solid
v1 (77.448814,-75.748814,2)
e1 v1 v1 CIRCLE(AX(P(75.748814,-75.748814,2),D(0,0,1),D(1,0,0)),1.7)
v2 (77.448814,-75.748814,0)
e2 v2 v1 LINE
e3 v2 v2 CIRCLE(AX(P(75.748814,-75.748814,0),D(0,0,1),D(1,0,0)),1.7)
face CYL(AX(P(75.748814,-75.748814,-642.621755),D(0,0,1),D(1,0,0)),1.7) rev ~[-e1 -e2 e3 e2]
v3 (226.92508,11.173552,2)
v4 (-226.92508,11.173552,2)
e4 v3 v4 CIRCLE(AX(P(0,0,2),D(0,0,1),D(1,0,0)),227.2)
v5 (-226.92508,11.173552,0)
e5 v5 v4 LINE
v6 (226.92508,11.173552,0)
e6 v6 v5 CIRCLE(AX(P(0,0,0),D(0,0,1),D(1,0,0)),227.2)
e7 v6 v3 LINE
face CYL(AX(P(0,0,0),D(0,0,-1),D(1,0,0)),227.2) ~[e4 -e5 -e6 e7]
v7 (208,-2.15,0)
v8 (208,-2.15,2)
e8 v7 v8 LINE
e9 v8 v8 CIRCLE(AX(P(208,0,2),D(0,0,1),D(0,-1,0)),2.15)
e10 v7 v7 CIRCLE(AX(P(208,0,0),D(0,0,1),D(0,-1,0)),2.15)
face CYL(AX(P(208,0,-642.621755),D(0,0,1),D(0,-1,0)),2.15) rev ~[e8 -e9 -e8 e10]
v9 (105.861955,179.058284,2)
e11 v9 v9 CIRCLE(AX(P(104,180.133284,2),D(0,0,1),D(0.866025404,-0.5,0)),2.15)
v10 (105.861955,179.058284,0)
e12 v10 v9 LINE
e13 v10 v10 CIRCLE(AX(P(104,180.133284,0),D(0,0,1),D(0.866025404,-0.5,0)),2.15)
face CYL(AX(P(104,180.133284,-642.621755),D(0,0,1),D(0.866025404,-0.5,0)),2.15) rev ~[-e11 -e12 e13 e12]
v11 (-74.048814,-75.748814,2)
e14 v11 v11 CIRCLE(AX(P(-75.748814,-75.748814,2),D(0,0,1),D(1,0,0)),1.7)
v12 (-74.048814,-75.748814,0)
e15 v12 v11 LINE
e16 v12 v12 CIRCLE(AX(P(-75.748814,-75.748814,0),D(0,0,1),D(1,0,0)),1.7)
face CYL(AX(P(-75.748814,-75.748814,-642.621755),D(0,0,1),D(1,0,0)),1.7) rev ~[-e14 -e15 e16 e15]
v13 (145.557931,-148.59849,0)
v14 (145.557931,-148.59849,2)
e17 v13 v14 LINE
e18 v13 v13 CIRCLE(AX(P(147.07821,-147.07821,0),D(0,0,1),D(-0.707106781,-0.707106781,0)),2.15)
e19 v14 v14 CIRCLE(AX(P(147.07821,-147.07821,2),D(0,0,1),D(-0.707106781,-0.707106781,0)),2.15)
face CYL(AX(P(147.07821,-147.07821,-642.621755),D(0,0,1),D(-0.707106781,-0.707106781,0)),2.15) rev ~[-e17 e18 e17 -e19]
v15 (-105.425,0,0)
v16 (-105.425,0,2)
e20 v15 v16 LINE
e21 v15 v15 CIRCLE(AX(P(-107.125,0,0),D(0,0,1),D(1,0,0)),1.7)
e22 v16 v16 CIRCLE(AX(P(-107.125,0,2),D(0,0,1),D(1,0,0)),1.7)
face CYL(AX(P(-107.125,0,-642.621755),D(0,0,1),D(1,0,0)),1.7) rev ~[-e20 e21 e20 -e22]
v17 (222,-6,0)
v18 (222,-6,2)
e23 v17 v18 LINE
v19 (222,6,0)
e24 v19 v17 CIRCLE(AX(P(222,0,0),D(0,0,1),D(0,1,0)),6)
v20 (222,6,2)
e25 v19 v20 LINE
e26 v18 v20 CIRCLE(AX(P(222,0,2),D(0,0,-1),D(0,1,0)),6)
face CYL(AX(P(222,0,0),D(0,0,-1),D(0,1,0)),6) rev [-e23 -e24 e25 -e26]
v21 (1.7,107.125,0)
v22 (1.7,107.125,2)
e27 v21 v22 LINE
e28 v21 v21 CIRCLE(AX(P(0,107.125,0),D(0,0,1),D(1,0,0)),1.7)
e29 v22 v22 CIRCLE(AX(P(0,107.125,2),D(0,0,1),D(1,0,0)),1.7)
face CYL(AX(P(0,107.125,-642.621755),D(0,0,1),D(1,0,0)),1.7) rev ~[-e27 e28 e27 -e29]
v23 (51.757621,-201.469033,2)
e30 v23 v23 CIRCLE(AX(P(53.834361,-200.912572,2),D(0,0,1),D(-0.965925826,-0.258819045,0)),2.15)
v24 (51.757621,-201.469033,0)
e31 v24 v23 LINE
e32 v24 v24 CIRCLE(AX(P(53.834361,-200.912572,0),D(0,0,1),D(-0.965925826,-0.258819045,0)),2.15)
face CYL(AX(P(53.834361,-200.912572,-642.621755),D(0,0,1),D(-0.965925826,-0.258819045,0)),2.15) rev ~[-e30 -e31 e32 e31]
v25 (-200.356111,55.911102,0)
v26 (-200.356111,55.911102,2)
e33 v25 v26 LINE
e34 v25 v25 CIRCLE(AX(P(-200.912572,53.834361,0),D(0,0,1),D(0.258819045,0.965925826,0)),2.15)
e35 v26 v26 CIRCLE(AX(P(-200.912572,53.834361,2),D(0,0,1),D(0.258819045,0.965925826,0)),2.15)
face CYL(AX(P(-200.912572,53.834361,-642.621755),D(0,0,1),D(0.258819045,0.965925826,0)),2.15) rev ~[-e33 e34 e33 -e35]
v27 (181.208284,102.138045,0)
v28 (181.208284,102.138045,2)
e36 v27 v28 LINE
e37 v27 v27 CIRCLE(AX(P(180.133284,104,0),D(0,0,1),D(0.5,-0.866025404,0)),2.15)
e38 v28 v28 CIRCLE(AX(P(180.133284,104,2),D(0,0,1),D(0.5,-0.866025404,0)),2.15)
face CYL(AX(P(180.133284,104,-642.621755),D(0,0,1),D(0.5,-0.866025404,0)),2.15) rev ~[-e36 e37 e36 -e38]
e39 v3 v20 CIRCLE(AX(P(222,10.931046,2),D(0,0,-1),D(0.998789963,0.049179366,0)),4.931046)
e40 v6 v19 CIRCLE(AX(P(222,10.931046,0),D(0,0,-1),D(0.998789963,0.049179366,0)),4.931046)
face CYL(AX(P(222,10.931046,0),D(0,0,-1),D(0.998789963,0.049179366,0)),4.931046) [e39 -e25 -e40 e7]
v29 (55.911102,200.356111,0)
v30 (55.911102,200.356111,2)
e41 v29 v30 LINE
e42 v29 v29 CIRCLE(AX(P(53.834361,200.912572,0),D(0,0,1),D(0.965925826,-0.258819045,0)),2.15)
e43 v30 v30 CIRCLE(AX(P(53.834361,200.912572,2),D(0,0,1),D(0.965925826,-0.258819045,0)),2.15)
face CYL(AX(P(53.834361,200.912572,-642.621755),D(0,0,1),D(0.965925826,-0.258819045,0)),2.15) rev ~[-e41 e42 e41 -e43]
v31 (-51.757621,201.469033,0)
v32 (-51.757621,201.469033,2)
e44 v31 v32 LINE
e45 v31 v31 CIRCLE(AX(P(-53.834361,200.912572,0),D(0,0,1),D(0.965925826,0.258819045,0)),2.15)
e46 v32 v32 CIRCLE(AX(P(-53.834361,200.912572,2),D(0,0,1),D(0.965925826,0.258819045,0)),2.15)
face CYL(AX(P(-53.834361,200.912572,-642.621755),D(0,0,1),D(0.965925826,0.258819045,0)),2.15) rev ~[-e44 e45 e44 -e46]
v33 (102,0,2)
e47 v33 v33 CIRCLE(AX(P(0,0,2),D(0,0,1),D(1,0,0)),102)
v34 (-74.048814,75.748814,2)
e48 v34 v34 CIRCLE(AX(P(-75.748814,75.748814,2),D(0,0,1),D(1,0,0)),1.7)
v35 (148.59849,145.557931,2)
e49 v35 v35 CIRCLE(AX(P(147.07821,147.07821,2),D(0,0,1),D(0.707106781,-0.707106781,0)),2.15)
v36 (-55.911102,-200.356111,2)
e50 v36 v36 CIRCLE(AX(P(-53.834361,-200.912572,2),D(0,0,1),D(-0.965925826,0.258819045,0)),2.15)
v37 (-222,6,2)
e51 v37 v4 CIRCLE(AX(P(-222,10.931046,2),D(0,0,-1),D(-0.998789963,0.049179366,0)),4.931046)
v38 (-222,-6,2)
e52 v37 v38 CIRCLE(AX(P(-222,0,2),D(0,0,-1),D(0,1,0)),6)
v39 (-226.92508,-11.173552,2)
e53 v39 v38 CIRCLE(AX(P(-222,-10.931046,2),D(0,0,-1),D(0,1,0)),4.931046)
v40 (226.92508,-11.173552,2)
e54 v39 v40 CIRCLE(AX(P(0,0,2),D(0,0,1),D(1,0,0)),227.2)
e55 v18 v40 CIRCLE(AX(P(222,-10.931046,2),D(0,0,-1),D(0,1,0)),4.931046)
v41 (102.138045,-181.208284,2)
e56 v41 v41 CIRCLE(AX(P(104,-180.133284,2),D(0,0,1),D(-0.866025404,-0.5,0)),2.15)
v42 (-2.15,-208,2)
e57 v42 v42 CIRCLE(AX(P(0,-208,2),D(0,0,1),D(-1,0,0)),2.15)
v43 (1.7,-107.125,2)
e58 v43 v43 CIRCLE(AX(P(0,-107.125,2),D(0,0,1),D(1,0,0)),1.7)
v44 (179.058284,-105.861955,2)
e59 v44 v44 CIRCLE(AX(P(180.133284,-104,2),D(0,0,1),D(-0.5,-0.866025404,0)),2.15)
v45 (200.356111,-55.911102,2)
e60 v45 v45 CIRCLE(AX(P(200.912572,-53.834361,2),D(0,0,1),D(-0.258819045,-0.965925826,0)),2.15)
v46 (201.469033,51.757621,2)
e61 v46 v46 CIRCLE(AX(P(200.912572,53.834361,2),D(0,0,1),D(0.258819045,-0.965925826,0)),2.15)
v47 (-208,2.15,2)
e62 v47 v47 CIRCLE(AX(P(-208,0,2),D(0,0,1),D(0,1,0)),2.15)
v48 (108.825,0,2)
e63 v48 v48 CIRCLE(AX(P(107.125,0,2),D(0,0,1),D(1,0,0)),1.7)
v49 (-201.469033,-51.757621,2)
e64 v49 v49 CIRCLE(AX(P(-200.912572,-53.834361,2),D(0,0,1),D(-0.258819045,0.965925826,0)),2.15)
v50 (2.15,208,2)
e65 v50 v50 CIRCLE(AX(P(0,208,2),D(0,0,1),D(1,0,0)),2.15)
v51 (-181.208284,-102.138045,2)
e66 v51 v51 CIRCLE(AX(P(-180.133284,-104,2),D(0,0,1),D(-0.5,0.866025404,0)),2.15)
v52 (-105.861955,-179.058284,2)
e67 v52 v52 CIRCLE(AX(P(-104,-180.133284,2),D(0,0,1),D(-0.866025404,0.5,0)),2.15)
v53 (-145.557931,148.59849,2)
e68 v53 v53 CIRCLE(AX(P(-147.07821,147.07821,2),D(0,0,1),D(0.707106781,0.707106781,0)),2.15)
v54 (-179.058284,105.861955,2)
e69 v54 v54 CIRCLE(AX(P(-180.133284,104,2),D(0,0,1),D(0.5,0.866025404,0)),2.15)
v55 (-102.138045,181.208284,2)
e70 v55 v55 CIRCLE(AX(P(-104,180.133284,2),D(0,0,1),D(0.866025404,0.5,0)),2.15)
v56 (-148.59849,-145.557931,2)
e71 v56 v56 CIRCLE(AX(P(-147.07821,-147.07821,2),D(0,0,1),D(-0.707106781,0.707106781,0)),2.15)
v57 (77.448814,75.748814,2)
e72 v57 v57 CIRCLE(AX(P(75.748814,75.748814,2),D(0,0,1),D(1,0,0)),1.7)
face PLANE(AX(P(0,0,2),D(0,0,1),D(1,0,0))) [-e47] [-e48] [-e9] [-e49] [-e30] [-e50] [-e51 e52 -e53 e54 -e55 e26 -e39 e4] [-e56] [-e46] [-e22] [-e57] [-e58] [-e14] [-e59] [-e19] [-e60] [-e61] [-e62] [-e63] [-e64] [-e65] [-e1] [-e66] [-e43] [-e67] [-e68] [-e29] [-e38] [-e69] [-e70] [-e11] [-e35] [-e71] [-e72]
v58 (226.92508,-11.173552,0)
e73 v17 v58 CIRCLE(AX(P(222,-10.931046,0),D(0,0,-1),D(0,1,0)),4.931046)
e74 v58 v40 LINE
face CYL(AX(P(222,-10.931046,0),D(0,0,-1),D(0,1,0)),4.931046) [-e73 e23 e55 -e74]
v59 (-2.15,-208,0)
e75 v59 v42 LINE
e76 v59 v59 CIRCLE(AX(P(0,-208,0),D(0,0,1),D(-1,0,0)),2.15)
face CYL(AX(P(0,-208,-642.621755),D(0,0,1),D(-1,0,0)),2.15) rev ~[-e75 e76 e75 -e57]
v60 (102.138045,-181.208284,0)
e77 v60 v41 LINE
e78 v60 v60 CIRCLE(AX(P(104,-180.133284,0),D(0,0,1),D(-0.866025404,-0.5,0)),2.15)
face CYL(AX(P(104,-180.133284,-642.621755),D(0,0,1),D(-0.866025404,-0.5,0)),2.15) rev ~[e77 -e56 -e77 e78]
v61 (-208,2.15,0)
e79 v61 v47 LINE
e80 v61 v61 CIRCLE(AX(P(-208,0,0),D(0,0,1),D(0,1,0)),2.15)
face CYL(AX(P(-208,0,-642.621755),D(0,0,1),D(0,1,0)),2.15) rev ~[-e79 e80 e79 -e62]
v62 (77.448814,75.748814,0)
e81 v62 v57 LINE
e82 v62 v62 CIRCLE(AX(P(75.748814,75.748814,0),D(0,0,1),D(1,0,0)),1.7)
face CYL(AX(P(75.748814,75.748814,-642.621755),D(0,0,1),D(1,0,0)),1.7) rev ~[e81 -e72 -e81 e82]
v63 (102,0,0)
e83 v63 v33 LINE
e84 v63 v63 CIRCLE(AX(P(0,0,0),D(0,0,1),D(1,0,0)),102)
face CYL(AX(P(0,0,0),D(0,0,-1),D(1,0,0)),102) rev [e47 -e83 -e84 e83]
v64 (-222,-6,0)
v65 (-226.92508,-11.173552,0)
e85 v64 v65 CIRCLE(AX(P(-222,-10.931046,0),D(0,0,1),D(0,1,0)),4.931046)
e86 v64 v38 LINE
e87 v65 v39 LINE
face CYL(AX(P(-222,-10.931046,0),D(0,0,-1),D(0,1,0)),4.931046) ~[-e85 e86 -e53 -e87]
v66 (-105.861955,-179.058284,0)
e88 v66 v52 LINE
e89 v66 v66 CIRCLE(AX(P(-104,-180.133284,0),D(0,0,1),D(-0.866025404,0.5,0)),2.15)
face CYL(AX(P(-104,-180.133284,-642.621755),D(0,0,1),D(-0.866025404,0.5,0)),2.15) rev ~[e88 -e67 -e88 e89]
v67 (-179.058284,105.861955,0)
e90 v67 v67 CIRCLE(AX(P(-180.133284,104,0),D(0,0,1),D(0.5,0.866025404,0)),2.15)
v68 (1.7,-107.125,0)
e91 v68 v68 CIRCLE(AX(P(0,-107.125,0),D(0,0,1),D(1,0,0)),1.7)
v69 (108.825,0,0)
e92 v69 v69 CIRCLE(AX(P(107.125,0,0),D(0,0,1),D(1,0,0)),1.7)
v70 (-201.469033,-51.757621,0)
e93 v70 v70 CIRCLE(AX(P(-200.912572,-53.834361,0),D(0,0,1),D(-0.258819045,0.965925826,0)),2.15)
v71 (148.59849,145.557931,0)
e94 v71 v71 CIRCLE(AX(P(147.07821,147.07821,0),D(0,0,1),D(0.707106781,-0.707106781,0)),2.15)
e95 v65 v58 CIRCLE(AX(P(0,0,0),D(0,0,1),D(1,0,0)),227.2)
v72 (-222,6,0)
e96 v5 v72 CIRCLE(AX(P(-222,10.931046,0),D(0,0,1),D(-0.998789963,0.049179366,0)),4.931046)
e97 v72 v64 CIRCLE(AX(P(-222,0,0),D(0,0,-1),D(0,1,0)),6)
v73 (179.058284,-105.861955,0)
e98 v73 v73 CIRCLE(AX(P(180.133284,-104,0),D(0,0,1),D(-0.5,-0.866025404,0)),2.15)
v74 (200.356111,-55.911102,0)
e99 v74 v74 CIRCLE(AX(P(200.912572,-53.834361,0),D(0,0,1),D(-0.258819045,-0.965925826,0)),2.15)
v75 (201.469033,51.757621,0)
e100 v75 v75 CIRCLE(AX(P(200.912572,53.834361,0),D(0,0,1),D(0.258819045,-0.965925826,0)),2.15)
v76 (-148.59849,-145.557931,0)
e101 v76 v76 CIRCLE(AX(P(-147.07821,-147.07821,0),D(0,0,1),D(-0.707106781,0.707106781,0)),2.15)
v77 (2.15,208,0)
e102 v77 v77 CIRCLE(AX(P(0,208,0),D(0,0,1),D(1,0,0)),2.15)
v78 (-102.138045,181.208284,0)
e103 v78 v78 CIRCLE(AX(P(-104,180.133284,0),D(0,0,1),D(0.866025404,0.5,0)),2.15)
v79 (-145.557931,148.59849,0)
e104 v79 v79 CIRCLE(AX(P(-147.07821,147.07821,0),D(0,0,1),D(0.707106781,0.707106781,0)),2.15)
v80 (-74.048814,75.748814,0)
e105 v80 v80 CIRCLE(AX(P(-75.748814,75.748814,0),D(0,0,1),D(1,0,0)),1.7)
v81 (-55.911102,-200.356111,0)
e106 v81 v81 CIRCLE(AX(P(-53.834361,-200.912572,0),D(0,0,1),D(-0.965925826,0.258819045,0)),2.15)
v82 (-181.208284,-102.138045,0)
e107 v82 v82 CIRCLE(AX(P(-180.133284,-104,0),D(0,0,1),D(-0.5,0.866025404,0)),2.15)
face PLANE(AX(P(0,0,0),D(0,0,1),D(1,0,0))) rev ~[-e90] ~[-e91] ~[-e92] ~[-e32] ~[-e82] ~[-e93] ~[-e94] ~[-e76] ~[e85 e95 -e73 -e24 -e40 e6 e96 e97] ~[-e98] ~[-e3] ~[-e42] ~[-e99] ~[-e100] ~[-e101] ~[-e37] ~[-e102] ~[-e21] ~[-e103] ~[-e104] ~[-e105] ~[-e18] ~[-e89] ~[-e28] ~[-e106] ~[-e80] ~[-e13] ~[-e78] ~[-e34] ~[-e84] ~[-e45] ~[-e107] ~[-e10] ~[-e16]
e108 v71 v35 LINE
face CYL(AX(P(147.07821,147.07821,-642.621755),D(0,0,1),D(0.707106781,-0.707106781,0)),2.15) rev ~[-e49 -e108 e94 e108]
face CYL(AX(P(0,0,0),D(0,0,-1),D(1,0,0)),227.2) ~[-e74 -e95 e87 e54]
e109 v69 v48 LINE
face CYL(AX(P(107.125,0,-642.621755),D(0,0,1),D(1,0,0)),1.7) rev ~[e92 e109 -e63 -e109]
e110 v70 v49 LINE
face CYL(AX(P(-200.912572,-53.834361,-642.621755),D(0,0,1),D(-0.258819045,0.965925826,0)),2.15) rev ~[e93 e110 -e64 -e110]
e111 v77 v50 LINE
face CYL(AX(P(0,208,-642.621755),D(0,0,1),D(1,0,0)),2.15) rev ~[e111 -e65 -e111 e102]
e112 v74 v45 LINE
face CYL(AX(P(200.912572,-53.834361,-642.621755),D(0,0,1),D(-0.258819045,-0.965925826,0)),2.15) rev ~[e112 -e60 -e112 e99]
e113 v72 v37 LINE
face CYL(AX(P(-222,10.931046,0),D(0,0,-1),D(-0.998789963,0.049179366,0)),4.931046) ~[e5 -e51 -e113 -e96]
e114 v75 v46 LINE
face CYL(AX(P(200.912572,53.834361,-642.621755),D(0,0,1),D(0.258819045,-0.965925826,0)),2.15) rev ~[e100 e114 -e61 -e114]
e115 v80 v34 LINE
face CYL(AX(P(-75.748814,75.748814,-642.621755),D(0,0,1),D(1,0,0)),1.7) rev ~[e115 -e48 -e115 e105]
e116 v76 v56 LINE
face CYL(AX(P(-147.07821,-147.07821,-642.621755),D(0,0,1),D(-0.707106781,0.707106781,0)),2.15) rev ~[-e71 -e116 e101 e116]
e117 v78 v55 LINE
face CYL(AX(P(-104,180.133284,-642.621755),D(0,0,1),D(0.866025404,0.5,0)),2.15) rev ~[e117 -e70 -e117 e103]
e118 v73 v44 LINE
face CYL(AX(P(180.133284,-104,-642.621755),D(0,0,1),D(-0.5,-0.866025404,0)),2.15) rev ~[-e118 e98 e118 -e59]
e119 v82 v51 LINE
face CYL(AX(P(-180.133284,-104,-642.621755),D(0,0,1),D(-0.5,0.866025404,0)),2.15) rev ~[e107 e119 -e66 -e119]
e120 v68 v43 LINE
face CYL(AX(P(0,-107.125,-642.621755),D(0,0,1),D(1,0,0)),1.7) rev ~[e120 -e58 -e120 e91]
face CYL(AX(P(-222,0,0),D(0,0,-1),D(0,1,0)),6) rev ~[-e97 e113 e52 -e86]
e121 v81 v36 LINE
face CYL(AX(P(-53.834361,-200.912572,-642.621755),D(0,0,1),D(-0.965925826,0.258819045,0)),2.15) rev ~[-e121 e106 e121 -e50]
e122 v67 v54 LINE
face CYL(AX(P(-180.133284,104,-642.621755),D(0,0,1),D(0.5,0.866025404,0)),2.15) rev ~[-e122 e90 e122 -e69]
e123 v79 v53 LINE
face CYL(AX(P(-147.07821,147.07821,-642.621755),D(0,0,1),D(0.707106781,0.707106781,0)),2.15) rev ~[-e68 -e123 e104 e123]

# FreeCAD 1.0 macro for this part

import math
import FreeCAD as App
import Part
import Sketcher
Q = App.Units.Quantity

doc = App.newDocument("Part")
body = doc.addObject("PartDesign::Body", "Body")

# Sketch on XY plane
sketch1 = body.newObject("Sketcher::SketchObject", "Sketch")
sketch1.AttachmentSupport = (doc.getObject("XY_Plane"), [""])
sketch1.MapMode = "FlatFace"
sketch1.addGeometry(Part.Circle(App.Vector(0, 0, 0), App.Vector(0, 0, 1), 227), False)
sketch1.addGeometry(Part.Circle(App.Vector(0, 0, 0), App.Vector(0, 0, 1), 102), False)
sketch1.addConstraint(Sketcher.Constraint("Coincident", 0, 3, -1, 1))
sketch1.addConstraint(Sketcher.Constraint("Coincident", 1, 3, -1, 1))
sketch1.addConstraint(Sketcher.Constraint("Diameter", 1, Q("204 mm")))
sketch1.addConstraint(Sketcher.Constraint("Diameter", 0, Q("454.4 mm")))
pad1 = body.newObject("PartDesign::Pad", "Pad")
pad1.Profile = sketch1
pad1.Length = 2

# Sketch on XY plane
sketch2 = body.newObject("Sketcher::SketchObject", "Sketch001")
sketch2.AttachmentSupport = (doc.getObject("XY_Plane"), [""])
sketch2.MapMode = "FlatFace"
sketch2.addGeometry(Part.Circle(App.Vector(0, 208, 0), App.Vector(0, 0, 1), 2.1), False)
sketch2.addConstraint(Sketcher.Constraint("PointOnObject", 0, 3, -2))
sketch2.addConstraint(Sketcher.Constraint("Diameter", 0, Q("4.3 mm")))
sketch2.addConstraint(Sketcher.Constraint("DistanceY", -1, 1, 0, 3, Q("208 mm")))
doc.recompute()
hole = body.newObject("PartDesign::Hole", "Hole")
hole.Profile = sketch2
hole.ThreadType = "None"
hole.Diameter = 4.3
hole.DepthType = "ThroughAll"
hole.Reversed = True
doc.recompute()

polarpattern = body.newObject("PartDesign::PolarPattern", "PolarPattern")
polarpattern.Originals = [hole]
polarpattern.Axis = (doc.getObject("Z_Axis"), [""])
polarpattern.Angle = 360
polarpattern.Occurrences = 24
body.Tip = polarpattern

# Sketch on XY plane
sketch3 = body.newObject("Sketcher::SketchObject", "Sketch002")
sketch3.AttachmentSupport = (doc.getObject("XY_Plane"), [""])
sketch3.MapMode = "FlatFace"
sketch3.addGeometry(Part.Circle(App.Vector(222, 0, 0), App.Vector(0, 0, 1), 2.1), False)
sketch3.addGeometry(Part.Circle(App.Vector(-222, 0, 0), App.Vector(0, 0, 1), 2.1), False)
sketch3.addConstraint(Sketcher.Constraint("Equal", 0, 1))
sketch3.addConstraint(Sketcher.Constraint("Symmetric", 0, 3, 1, 3, -1, 1))
sketch3.addConstraint(Sketcher.Constraint("PointOnObject", 0, 3, -1))
sketch3.addConstraint(Sketcher.Constraint("Diameter", 0, Q("4.3 mm")))
sketch3.addConstraint(Sketcher.Constraint("DistanceX", -1, 1, 0, 3, Q("222 mm")))
doc.recompute()
hole2 = body.newObject("PartDesign::Hole", "Hole001")
hole2.Profile = sketch3
hole2.ThreadType = "None"
hole2.Diameter = 4.3
hole2.DepthType = "ThroughAll"
hole2.Reversed = True

# Sketch on XY plane
sketch4 = body.newObject("Sketcher::SketchObject", "Sketch003")
sketch4.AttachmentSupport = (doc.getObject("XY_Plane"), [""])
sketch4.MapMode = "FlatFace"
sketch4.addGeometry(Part.Circle(App.Vector(107.1, 0, 0), App.Vector(0, 0, 1), 1.7), False)
sketch4.addGeometry(Part.Circle(App.Vector(75.7, -75.7, 0), App.Vector(0, 0, 1), 1.7), False)
sketch4.addGeometry(Part.Circle(App.Vector(0, -107.1, 0), App.Vector(0, 0, 1), 1.7), False)
sketch4.addGeometry(Part.Circle(App.Vector(-75.7, -75.7, 0), App.Vector(0, 0, 1), 1.7), False)
sketch4.addGeometry(Part.Circle(App.Vector(-107.1, 0, 0), App.Vector(0, 0, 1), 1.7), False)
sketch4.addGeometry(Part.Circle(App.Vector(-75.7, 75.7, 0), App.Vector(0, 0, 1), 1.7), False)
sketch4.addGeometry(Part.Circle(App.Vector(0, 107.1, 0), App.Vector(0, 0, 1), 1.7), False)
sketch4.addGeometry(Part.Circle(App.Vector(75.7, 75.7, 0), App.Vector(0, 0, 1), 1.7), False)
sketch4.addConstraint(Sketcher.Constraint("Equal", 0, 1))
sketch4.addConstraint(Sketcher.Constraint("Equal", 1, 2))
sketch4.addConstraint(Sketcher.Constraint("Equal", 2, 3))
sketch4.addConstraint(Sketcher.Constraint("Equal", 3, 4))
sketch4.addConstraint(Sketcher.Constraint("Equal", 4, 5))
sketch4.addConstraint(Sketcher.Constraint("Equal", 5, 6))
sketch4.addConstraint(Sketcher.Constraint("Equal", 6, 7))
sketch4.addConstraint(Sketcher.Constraint("Symmetric", 0, 3, 4, 3, -1, 1))
sketch4.addConstraint(Sketcher.Constraint("Symmetric", 1, 3, 5, 3, -1, 1))
sketch4.addConstraint(Sketcher.Constraint("Symmetric", 2, 3, 6, 3, -1, 1))
sketch4.addConstraint(Sketcher.Constraint("Symmetric", 3, 3, 7, 3, -1, 1))
sketch4.addConstraint(Sketcher.Constraint("Symmetric", 1, 3, 3, 3, -2))
sketch4.addConstraint(Sketcher.Constraint("PointOnObject", 0, 3, -1))
sketch4.addConstraint(Sketcher.Constraint("PointOnObject", 2, 3, -2))
sketch4.addConstraint(Sketcher.Constraint("Diameter", 0, Q("3.4 mm")))
sketch4.addConstraint(Sketcher.Constraint("DistanceX", 4, 3, 0, 3, Q("214.25 mm")))
sketch4.addConstraint(Sketcher.Constraint("DistanceY", 2, 3, -1, 1, Q("107.125 mm")))
sketch4.addConstraint(Sketcher.Constraint("DistanceX", -1, 1, 1, 3, Q("75.748814 mm")))
sketch4.addConstraint(Sketcher.Constraint("DistanceY", 1, 3, -1, 1, Q("75.748814 mm")))
doc.recompute()
hole3 = body.newObject("PartDesign::Hole", "Hole002")
hole3.Profile = sketch4
hole3.ThreadType = "None"
hole3.Diameter = 3.4
hole3.DepthType = "ThroughAll"
hole3.Reversed = True

# Sketch on XY plane
sketch5 = body.newObject("Sketcher::SketchObject", "Sketch004")
sketch5.AttachmentSupport = (doc.getObject("XY_Plane"), [""])
sketch5.MapMode = "FlatFace"
sketch5.addGeometry(Part.ArcOfCircle(Part.Circle(App.Vector(-222, 0, 0), App.Vector(0, 0, 1), 6), math.radians(-90), math.radians(90)), False)
sketch5.addGeometry(Part.ArcOfCircle(Part.Circle(App.Vector(-222, -10.9, 0), App.Vector(0, 0, 1), 4.9), math.radians(90), math.radians(183)), False)
sketch5.addGeometry(Part.ArcOfCircle(Part.Circle(App.Vector(0, 0, 0), App.Vector(0, 0, 1), 227.2), math.radians(177.18), math.radians(182.82)), False)
sketch5.addGeometry(Part.ArcOfCircle(Part.Circle(App.Vector(-222, 10.9, 0), App.Vector(0, 0, 1), 4.9), math.radians(177), math.radians(270)), False)
sketch5.addGeometry(Part.ArcOfCircle(Part.Circle(App.Vector(222, -10.9, 0), App.Vector(0, 0, 1), 4.9), math.radians(-3), math.radians(90)), False)
sketch5.addGeometry(Part.ArcOfCircle(Part.Circle(App.Vector(222, 0, 0), App.Vector(0, 0, 1), 6), math.radians(90), math.radians(270)), False)
sketch5.addGeometry(Part.ArcOfCircle(Part.Circle(App.Vector(222, 10.9, 0), App.Vector(0, 0, 1), 4.9), math.radians(-90), math.radians(3)), False)
sketch5.addGeometry(Part.ArcOfCircle(Part.Circle(App.Vector(0, 0, 0), App.Vector(0, 0, 1), 227.2), math.radians(-2.82), math.radians(2.82)), False)
sketch5.addConstraint(Sketcher.Constraint("Tangent", 0, 1, 1, 1))
sketch5.addConstraint(Sketcher.Constraint("Tangent", 1, 2, 2, 2))
sketch5.addConstraint(Sketcher.Constraint("Tangent", 2, 1, 3, 1))
sketch5.addConstraint(Sketcher.Constraint("Tangent", 3, 2, 0, 2))
sketch5.addConstraint(Sketcher.Constraint("Tangent", 4, 2, 5, 2))
sketch5.addConstraint(Sketcher.Constraint("Tangent", 5, 1, 6, 1))
sketch5.addConstraint(Sketcher.Constraint("Tangent", 6, 2, 7, 2))
sketch5.addConstraint(Sketcher.Constraint("Tangent", 7, 1, 4, 1))
sketch5.addConstraint(Sketcher.Constraint("Coincident", 2, 3, -1, 1))
sketch5.addConstraint(Sketcher.Constraint("Coincident", 7, 3, -1, 1))
sketch5.addConstraint(Sketcher.Constraint("Equal", 1, 3))
sketch5.addConstraint(Sketcher.Constraint("Equal", 3, 4))
sketch5.addConstraint(Sketcher.Constraint("Equal", 0, 5))
sketch5.addConstraint(Sketcher.Constraint("Equal", 4, 6))
sketch5.addConstraint(Sketcher.Constraint("Equal", 2, 7))
sketch5.addConstraint(Sketcher.Constraint("Symmetric", 0, 3, 5, 3, -1, 1))
sketch5.addConstraint(Sketcher.Constraint("PointOnObject", 0, 3, -1))
sketch5.addConstraint(Sketcher.Constraint("Vertical", 0, 3, 1, 3))
sketch5.addConstraint(Sketcher.Constraint("Radius", 0, Q("6 mm")))
sketch5.addConstraint(Sketcher.Constraint("Radius", 2, Q("227.2 mm")))
sketch5.addConstraint(Sketcher.Constraint("DistanceX", 0, 3, -1, 1, Q("222 mm")))
pocket1 = body.newObject("PartDesign::Pocket", "Pocket")
pocket1.Profile = sketch5
pocket1.Type = "ThroughAll"
pocket1.Reversed = True

doc.recompute()
